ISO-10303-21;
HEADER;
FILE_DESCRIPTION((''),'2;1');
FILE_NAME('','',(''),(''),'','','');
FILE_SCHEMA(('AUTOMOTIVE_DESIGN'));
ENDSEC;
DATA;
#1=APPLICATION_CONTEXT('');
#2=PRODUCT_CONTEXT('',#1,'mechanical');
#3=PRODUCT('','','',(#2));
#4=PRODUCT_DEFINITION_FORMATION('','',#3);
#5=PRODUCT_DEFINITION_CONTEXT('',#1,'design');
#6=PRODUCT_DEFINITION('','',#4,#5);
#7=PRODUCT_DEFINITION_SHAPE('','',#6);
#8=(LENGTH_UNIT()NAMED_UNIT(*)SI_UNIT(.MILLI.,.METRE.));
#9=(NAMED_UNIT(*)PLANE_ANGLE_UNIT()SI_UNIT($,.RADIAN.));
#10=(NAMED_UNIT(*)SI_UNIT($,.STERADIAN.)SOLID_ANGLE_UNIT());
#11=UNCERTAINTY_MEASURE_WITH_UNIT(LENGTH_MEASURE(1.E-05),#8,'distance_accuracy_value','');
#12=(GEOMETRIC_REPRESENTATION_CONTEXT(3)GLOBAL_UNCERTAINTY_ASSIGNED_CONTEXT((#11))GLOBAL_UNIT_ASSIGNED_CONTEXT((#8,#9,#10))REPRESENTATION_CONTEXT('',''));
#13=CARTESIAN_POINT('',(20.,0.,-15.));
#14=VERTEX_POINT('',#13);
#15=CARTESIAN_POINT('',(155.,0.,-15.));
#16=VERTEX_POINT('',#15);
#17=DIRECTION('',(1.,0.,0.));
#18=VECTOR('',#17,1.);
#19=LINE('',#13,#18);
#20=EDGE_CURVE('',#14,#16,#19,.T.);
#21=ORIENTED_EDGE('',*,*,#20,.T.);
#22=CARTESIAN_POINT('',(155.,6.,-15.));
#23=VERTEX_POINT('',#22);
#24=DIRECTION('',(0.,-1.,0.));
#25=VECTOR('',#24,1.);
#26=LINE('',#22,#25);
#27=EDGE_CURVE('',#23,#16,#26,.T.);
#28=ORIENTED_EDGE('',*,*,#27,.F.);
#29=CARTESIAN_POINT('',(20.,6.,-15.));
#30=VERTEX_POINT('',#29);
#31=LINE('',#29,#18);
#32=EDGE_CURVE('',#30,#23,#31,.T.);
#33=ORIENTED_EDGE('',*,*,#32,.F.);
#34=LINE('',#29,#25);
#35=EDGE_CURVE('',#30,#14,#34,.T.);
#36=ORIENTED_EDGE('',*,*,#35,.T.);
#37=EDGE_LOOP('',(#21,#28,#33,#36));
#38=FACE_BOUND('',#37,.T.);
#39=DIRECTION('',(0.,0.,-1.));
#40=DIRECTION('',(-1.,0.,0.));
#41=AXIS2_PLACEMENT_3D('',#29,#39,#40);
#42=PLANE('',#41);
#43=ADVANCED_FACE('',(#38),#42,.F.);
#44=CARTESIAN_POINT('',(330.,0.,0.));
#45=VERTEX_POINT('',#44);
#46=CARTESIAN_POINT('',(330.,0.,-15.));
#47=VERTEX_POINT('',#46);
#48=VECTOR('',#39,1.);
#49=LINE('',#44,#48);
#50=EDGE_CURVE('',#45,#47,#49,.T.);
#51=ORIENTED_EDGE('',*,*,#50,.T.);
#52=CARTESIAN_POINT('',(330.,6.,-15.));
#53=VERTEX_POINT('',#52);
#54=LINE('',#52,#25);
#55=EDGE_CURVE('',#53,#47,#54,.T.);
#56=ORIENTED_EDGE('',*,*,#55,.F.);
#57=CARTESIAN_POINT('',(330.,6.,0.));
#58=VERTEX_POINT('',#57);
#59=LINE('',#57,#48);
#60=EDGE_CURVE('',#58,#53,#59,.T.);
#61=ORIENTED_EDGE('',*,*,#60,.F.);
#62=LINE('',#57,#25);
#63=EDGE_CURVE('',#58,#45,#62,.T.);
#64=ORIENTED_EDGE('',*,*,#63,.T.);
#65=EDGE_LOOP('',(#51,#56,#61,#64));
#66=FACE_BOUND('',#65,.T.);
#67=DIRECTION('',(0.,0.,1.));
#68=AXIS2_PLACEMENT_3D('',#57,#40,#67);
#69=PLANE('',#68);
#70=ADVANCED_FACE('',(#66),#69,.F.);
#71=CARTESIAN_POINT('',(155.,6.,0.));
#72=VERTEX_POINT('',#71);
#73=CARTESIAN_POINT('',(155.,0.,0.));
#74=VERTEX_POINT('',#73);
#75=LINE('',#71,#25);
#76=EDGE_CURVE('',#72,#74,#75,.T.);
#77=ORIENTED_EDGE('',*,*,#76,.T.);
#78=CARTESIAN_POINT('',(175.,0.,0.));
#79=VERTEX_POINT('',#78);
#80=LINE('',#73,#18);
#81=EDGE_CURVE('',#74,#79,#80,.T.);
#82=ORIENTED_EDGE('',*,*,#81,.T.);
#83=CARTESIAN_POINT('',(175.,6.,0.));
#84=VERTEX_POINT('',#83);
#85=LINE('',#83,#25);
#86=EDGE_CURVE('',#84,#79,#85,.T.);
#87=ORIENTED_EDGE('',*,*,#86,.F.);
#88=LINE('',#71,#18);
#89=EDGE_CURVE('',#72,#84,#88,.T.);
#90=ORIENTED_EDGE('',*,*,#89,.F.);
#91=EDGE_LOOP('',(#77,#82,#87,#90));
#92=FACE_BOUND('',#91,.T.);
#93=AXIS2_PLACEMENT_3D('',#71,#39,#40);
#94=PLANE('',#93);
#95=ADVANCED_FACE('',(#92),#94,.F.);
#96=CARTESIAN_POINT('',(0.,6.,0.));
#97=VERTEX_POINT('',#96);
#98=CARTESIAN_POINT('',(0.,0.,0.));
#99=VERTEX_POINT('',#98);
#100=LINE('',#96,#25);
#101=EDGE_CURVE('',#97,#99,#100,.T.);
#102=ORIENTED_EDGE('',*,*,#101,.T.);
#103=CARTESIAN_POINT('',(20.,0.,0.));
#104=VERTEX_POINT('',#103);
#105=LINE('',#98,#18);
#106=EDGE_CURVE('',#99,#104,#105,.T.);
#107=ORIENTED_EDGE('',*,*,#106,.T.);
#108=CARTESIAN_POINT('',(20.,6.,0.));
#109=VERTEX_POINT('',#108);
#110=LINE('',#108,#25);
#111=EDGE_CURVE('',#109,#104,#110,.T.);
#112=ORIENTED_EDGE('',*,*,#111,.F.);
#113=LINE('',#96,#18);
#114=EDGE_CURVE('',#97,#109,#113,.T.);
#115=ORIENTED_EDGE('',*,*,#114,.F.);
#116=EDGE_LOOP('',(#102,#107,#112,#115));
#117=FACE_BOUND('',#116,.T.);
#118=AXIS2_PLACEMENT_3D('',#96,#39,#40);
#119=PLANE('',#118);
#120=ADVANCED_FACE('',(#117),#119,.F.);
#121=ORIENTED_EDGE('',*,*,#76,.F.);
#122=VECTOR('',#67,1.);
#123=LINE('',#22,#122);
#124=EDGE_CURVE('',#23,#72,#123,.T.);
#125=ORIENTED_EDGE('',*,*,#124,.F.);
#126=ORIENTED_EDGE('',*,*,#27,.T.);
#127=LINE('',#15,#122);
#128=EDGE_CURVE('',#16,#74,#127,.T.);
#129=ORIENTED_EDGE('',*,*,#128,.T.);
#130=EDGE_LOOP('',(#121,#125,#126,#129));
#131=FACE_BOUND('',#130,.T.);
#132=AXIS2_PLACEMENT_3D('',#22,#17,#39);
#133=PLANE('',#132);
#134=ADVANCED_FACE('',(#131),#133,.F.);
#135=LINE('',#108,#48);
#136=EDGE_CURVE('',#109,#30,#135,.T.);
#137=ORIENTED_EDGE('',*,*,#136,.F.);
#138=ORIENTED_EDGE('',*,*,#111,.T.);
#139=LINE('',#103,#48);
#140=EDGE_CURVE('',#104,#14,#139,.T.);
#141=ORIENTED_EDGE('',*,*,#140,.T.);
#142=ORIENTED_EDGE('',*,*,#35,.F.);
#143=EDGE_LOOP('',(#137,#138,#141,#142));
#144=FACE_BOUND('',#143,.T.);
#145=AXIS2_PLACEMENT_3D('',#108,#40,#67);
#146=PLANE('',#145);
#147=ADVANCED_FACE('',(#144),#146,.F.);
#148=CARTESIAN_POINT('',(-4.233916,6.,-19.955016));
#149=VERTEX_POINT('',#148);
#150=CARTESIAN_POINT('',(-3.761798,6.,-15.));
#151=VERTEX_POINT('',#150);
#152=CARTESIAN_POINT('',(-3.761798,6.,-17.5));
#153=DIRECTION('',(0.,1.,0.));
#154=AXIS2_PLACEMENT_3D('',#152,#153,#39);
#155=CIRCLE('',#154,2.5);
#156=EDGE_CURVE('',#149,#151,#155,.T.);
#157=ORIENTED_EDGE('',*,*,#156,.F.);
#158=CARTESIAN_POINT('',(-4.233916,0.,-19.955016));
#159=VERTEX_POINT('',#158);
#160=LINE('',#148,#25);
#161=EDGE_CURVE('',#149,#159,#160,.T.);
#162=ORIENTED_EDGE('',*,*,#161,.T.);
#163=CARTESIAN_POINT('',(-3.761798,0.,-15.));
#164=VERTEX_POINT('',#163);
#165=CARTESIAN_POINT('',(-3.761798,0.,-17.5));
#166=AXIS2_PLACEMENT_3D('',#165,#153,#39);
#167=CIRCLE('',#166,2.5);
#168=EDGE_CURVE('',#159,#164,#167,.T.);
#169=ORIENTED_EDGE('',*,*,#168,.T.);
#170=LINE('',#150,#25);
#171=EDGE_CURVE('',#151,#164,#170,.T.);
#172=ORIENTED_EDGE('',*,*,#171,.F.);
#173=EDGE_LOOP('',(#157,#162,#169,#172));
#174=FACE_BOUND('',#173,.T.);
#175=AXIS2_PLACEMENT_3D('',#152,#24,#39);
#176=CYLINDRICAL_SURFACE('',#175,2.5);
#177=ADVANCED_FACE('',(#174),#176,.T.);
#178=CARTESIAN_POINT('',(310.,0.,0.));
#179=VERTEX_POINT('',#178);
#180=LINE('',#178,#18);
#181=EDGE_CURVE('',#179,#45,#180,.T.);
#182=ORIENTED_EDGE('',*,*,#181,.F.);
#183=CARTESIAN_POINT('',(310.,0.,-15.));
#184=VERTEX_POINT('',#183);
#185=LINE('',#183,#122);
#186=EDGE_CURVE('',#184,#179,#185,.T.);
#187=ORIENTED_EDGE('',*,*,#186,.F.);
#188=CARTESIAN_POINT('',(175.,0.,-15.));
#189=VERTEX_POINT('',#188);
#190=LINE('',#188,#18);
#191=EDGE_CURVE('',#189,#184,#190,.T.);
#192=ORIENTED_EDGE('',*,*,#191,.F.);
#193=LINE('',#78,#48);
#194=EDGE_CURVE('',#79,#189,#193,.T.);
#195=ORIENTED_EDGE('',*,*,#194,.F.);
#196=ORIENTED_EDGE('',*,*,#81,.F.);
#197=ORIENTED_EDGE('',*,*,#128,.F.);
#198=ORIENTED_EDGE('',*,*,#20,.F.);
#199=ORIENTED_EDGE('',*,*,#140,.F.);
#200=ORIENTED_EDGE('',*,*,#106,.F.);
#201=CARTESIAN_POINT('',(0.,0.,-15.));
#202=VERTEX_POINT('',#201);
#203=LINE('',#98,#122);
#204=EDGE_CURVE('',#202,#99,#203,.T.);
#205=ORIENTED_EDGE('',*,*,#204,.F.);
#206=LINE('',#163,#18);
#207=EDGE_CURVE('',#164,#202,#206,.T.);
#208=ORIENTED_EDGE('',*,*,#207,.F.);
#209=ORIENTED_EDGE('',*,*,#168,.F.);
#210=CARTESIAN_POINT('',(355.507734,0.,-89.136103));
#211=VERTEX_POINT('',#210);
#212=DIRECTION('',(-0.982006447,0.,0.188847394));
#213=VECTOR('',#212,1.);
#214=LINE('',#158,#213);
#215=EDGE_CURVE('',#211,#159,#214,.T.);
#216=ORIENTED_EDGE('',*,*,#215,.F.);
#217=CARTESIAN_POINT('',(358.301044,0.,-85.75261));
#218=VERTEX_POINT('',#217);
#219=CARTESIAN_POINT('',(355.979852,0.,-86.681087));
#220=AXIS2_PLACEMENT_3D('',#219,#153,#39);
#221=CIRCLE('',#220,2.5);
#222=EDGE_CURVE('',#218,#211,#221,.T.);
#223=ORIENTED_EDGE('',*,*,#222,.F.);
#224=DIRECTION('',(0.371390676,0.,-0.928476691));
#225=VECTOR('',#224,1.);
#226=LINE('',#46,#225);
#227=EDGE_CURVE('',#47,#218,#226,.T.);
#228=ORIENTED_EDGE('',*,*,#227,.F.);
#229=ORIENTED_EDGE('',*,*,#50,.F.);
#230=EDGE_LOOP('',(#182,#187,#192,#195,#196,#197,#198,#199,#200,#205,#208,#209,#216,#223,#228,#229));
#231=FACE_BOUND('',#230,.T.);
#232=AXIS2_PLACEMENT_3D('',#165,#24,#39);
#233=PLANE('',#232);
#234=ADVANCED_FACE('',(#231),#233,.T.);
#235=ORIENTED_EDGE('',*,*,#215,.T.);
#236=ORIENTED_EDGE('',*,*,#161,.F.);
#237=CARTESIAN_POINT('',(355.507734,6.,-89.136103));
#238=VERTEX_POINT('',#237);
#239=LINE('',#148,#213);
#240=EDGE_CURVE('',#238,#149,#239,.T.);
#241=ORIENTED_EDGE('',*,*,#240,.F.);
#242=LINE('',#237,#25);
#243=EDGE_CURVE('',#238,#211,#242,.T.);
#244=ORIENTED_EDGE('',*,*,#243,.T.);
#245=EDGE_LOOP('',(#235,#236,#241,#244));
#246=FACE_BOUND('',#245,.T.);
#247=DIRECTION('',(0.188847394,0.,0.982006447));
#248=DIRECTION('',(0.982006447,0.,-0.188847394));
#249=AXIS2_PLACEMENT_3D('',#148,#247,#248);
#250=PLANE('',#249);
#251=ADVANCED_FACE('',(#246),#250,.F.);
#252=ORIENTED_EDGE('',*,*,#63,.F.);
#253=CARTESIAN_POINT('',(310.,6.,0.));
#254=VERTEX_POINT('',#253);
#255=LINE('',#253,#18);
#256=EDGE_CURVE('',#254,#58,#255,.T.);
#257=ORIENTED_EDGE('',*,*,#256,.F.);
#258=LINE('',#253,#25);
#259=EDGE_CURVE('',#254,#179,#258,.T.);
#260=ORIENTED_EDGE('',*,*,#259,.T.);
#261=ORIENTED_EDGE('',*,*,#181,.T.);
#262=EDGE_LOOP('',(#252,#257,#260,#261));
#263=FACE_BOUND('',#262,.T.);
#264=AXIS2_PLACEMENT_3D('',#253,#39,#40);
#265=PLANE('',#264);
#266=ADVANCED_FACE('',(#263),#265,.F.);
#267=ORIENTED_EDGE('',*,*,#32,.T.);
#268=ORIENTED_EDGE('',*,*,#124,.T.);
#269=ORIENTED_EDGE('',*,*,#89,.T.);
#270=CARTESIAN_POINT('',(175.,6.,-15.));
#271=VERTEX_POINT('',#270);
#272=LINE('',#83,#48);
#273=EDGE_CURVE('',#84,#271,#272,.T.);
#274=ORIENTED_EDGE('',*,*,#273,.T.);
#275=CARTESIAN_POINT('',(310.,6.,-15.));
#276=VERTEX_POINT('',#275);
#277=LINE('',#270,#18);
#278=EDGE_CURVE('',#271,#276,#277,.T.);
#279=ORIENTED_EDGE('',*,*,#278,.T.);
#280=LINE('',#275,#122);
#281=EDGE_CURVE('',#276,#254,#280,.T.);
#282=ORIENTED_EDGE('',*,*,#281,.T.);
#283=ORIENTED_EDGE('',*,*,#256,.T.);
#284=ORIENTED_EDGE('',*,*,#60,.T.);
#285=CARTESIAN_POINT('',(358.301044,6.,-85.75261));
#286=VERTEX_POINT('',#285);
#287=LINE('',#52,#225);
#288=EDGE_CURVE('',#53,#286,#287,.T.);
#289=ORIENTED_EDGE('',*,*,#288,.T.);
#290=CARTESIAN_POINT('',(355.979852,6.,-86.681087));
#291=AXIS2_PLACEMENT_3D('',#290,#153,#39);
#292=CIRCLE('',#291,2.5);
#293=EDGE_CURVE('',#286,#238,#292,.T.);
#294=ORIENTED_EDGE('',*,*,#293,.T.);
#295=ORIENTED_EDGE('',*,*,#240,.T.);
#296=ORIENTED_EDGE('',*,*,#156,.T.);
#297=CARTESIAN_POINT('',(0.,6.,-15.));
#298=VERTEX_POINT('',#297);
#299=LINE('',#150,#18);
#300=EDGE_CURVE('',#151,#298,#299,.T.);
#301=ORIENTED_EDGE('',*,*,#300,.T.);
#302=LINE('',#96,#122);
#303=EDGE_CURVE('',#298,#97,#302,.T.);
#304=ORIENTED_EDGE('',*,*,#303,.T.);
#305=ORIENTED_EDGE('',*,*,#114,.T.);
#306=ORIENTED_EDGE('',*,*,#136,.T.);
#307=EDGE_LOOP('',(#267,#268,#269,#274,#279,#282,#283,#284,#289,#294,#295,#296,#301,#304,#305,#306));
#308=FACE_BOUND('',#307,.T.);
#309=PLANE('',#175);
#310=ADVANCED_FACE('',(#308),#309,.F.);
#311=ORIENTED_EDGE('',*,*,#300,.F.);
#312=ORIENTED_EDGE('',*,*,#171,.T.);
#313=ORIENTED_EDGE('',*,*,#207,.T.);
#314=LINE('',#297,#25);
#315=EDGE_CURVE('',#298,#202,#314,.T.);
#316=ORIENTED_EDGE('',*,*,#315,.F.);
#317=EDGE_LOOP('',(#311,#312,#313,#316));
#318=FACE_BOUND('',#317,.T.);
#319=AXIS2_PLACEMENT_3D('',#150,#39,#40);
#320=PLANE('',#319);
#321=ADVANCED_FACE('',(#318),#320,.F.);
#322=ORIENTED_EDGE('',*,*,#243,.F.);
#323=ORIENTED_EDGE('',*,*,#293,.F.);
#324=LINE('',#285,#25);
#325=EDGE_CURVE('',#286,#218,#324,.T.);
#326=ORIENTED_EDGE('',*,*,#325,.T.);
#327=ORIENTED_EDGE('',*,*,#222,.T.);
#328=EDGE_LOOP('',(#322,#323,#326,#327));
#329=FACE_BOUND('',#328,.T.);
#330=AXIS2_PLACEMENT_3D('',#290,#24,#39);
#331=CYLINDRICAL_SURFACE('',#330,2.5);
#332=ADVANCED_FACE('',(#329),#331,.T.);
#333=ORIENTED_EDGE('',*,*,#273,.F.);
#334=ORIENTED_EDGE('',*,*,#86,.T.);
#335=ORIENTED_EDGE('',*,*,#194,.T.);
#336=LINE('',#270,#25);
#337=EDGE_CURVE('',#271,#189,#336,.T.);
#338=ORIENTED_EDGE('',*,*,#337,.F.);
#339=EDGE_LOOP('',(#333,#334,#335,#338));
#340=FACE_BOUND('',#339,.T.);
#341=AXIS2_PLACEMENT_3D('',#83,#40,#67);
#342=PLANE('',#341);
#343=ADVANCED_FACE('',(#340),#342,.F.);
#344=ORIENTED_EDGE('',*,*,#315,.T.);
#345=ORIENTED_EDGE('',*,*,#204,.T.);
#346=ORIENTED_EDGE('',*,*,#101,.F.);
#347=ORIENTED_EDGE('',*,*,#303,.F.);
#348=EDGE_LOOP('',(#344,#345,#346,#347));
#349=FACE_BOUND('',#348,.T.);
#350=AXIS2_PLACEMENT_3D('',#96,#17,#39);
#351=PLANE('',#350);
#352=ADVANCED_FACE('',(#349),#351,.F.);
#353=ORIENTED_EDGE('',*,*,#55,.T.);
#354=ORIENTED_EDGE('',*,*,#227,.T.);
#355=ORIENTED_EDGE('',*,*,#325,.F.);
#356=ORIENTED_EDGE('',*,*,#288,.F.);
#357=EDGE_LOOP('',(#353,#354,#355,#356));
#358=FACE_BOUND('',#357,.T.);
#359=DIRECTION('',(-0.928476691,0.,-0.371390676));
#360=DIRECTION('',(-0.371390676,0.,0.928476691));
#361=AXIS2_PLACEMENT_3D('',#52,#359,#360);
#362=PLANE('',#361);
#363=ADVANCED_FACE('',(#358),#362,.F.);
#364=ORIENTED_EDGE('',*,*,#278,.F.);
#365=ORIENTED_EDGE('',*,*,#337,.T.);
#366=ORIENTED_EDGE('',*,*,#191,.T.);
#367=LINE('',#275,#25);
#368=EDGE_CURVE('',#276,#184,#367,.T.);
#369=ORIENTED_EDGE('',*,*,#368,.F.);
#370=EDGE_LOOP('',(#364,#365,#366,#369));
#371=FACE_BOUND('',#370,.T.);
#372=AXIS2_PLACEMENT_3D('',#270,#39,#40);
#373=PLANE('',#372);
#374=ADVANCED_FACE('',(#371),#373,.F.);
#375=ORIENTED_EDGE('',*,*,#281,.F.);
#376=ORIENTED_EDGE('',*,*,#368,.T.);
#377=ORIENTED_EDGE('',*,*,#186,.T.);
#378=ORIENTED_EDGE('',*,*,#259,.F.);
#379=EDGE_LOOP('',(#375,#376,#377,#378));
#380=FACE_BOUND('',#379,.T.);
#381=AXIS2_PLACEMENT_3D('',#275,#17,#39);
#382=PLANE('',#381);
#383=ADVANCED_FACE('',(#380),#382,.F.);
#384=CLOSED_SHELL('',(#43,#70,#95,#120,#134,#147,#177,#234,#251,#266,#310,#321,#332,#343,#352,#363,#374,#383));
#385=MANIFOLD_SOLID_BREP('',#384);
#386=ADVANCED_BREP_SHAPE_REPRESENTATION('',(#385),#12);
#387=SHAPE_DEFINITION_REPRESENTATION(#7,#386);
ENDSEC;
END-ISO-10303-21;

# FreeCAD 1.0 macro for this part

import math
import FreeCAD as App
import Part
import Sketcher
Q = App.Units.Quantity

doc = App.newDocument("Part")
body = doc.addObject("PartDesign::Body", "Body")

sketch1 = body.newObject("Sketcher::SketchObject", "Sketch")
sketch1.AttachmentSupport = (doc.getObject("XZ_Plane"), [""])
sketch1.MapMode = "FlatFace"
sketch1.addGeometry(Part.LineSegment(App.Vector(355.5, -89.1, 0), App.Vector(-4.2, -20, 0)), False)
sketch1.addGeometry(Part.ArcOfCircle(Part.Circle(App.Vector(-3.8, -17.5, 0), App.Vector(0, 0, 1), 2.5), math.radians(90), math.radians(259)), False)
sketch1.addGeometry(Part.LineSegment(App.Vector(-3.8, -15, 0), App.Vector(0, -15, 0)), False)
sketch1.addGeometry(Part.LineSegment(App.Vector(0, -15, 0), App.Vector(0, 0, 0)), False)
sketch1.addGeometry(Part.LineSegment(App.Vector(0, 0, 0), App.Vector(20, 0, 0)), False)
sketch1.addGeometry(Part.LineSegment(App.Vector(20, 0, 0), App.Vector(20, -15, 0)), False)
sketch1.addGeometry(Part.LineSegment(App.Vector(20, -15, 0), App.Vector(155, -15, 0)), False)
sketch1.addGeometry(Part.LineSegment(App.Vector(155, -15, 0), App.Vector(155, 0, 0)), False)
sketch1.addGeometry(Part.LineSegment(App.Vector(155, 0, 0), App.Vector(175, 0, 0)), False)
sketch1.addGeometry(Part.LineSegment(App.Vector(175, 0, 0), App.Vector(175, -15, 0)), False)
sketch1.addGeometry(Part.LineSegment(App.Vector(175, -15, 0), App.Vector(310, -15, 0)), False)
sketch1.addGeometry(Part.LineSegment(App.Vector(310, -15, 0), App.Vector(310, 0, 0)), False)
sketch1.addGeometry(Part.LineSegment(App.Vector(310, 0, 0), App.Vector(330, 0, 0)), False)
sketch1.addGeometry(Part.LineSegment(App.Vector(330, 0, 0), App.Vector(330, -15, 0)), False)
sketch1.addGeometry(Part.LineSegment(App.Vector(330, -15, 0), App.Vector(358.3, -85.8, 0)), False)
sketch1.addGeometry(Part.ArcOfCircle(Part.Circle(App.Vector(356, -86.7, 0), App.Vector(0, 0, 1), 2.5), math.radians(-101), math.radians(22)), False)
sketch1.addConstraint(Sketcher.Constraint("Tangent", 0, 2, 1, 2))
sketch1.addConstraint(Sketcher.Constraint("Tangent", 1, 1, 2, 1))
sketch1.addConstraint(Sketcher.Constraint("Coincident", 2, 2, 3, 1))
sketch1.addConstraint(Sketcher.Constraint("Coincident", 3, 2, 4, 1))
sketch1.addConstraint(Sketcher.Constraint("Coincident", 4, 2, 5, 1))
sketch1.addConstraint(Sketcher.Constraint("Coincident", 5, 2, 6, 1))
sketch1.addConstraint(Sketcher.Constraint("Coincident", 6, 2, 7, 1))
sketch1.addConstraint(Sketcher.Constraint("Coincident", 7, 2, 8, 1))
sketch1.addConstraint(Sketcher.Constraint("Coincident", 8, 2, 9, 1))
sketch1.addConstraint(Sketcher.Constraint("Coincident", 9, 2, 10, 1))
sketch1.addConstraint(Sketcher.Constraint("Coincident", 10, 2, 11, 1))
sketch1.addConstraint(Sketcher.Constraint("Coincident", 11, 2, 12, 1))
sketch1.addConstraint(Sketcher.Constraint("Coincident", 12, 2, 13, 1))
sketch1.addConstraint(Sketcher.Constraint("Coincident", 13, 2, 14, 1))
sketch1.addConstraint(Sketcher.Constraint("Tangent", 14, 2, 15, 2))
sketch1.addConstraint(Sketcher.Constraint("Tangent", 15, 1, 0, 1))
sketch1.addConstraint(Sketcher.Constraint("Horizontal", 2))
sketch1.addConstraint(Sketcher.Constraint("Vertical", 3))
sketch1.addConstraint(Sketcher.Constraint("Horizontal", 4))
sketch1.addConstraint(Sketcher.Constraint("Vertical", 5))
sketch1.addConstraint(Sketcher.Constraint("Horizontal", 6))
sketch1.addConstraint(Sketcher.Constraint("Vertical", 7))
sketch1.addConstraint(Sketcher.Constraint("Horizontal", 8))
sketch1.addConstraint(Sketcher.Constraint("Vertical", 9))
sketch1.addConstraint(Sketcher.Constraint("Horizontal", 10))
sketch1.addConstraint(Sketcher.Constraint("Vertical", 11))
sketch1.addConstraint(Sketcher.Constraint("Horizontal", 12))
sketch1.addConstraint(Sketcher.Constraint("Vertical", 13))
sketch1.addConstraint(Sketcher.Constraint("Coincident", 3, 2, -1, 1))
sketch1.addConstraint(Sketcher.Constraint("Equal", 1, 15))
sketch1.addConstraint(Sketcher.Constraint("PointOnObject", 7, 2, -1))
sketch1.addConstraint(Sketcher.Constraint("PointOnObject", 11, 2, -1))
sketch1.addConstraint(Sketcher.Constraint("Horizontal", 2, 2, 5, 2))
sketch1.addConstraint(Sketcher.Constraint("Horizontal", 6, 2, 9, 2))
sketch1.addConstraint(Sketcher.Constraint("Horizontal", 10, 2, 13, 2))
sketch1.addConstraint(Sketcher.Constraint("Equal", 4, 8))
sketch1.addConstraint(Sketcher.Constraint("Equal", 6, 10))
sketch1.addConstraint(Sketcher.Constraint("Equal", 8, 12))
sketch1.addConstraint(Sketcher.Constraint("Radius", 1, Q("2.5 mm")))
sketch1.addConstraint(Sketcher.Constraint("DistanceX", 4, 1, 4, 2, Q("20 mm")))
sketch1.addConstraint(Sketcher.Constraint("DistanceX", 6, 1, 6, 2, Q("135 mm")))
sketch1.addConstraint(Sketcher.Constraint("DistanceY", 3, 1, 3, 2, Q("15 mm")))
sketch1.addConstraint(Sketcher.Constraint("DistanceX", 2, 1, 2, 2, Q("3.761798 mm")))
sketch1.addConstraint(Sketcher.Constraint("DistanceY", 14, 2, -1, 1, Q("85.75261 mm")))
sketch1.addConstraint(Sketcher.Constraint("DistanceX", 1, 3, 15, 3, Q("359.74165 mm")))
pad1 = body.newObject("PartDesign::Pad", "Pad")
pad1.Profile = sketch1
pad1.Length = 6
pad1.Reversed = True

doc.recompute()
